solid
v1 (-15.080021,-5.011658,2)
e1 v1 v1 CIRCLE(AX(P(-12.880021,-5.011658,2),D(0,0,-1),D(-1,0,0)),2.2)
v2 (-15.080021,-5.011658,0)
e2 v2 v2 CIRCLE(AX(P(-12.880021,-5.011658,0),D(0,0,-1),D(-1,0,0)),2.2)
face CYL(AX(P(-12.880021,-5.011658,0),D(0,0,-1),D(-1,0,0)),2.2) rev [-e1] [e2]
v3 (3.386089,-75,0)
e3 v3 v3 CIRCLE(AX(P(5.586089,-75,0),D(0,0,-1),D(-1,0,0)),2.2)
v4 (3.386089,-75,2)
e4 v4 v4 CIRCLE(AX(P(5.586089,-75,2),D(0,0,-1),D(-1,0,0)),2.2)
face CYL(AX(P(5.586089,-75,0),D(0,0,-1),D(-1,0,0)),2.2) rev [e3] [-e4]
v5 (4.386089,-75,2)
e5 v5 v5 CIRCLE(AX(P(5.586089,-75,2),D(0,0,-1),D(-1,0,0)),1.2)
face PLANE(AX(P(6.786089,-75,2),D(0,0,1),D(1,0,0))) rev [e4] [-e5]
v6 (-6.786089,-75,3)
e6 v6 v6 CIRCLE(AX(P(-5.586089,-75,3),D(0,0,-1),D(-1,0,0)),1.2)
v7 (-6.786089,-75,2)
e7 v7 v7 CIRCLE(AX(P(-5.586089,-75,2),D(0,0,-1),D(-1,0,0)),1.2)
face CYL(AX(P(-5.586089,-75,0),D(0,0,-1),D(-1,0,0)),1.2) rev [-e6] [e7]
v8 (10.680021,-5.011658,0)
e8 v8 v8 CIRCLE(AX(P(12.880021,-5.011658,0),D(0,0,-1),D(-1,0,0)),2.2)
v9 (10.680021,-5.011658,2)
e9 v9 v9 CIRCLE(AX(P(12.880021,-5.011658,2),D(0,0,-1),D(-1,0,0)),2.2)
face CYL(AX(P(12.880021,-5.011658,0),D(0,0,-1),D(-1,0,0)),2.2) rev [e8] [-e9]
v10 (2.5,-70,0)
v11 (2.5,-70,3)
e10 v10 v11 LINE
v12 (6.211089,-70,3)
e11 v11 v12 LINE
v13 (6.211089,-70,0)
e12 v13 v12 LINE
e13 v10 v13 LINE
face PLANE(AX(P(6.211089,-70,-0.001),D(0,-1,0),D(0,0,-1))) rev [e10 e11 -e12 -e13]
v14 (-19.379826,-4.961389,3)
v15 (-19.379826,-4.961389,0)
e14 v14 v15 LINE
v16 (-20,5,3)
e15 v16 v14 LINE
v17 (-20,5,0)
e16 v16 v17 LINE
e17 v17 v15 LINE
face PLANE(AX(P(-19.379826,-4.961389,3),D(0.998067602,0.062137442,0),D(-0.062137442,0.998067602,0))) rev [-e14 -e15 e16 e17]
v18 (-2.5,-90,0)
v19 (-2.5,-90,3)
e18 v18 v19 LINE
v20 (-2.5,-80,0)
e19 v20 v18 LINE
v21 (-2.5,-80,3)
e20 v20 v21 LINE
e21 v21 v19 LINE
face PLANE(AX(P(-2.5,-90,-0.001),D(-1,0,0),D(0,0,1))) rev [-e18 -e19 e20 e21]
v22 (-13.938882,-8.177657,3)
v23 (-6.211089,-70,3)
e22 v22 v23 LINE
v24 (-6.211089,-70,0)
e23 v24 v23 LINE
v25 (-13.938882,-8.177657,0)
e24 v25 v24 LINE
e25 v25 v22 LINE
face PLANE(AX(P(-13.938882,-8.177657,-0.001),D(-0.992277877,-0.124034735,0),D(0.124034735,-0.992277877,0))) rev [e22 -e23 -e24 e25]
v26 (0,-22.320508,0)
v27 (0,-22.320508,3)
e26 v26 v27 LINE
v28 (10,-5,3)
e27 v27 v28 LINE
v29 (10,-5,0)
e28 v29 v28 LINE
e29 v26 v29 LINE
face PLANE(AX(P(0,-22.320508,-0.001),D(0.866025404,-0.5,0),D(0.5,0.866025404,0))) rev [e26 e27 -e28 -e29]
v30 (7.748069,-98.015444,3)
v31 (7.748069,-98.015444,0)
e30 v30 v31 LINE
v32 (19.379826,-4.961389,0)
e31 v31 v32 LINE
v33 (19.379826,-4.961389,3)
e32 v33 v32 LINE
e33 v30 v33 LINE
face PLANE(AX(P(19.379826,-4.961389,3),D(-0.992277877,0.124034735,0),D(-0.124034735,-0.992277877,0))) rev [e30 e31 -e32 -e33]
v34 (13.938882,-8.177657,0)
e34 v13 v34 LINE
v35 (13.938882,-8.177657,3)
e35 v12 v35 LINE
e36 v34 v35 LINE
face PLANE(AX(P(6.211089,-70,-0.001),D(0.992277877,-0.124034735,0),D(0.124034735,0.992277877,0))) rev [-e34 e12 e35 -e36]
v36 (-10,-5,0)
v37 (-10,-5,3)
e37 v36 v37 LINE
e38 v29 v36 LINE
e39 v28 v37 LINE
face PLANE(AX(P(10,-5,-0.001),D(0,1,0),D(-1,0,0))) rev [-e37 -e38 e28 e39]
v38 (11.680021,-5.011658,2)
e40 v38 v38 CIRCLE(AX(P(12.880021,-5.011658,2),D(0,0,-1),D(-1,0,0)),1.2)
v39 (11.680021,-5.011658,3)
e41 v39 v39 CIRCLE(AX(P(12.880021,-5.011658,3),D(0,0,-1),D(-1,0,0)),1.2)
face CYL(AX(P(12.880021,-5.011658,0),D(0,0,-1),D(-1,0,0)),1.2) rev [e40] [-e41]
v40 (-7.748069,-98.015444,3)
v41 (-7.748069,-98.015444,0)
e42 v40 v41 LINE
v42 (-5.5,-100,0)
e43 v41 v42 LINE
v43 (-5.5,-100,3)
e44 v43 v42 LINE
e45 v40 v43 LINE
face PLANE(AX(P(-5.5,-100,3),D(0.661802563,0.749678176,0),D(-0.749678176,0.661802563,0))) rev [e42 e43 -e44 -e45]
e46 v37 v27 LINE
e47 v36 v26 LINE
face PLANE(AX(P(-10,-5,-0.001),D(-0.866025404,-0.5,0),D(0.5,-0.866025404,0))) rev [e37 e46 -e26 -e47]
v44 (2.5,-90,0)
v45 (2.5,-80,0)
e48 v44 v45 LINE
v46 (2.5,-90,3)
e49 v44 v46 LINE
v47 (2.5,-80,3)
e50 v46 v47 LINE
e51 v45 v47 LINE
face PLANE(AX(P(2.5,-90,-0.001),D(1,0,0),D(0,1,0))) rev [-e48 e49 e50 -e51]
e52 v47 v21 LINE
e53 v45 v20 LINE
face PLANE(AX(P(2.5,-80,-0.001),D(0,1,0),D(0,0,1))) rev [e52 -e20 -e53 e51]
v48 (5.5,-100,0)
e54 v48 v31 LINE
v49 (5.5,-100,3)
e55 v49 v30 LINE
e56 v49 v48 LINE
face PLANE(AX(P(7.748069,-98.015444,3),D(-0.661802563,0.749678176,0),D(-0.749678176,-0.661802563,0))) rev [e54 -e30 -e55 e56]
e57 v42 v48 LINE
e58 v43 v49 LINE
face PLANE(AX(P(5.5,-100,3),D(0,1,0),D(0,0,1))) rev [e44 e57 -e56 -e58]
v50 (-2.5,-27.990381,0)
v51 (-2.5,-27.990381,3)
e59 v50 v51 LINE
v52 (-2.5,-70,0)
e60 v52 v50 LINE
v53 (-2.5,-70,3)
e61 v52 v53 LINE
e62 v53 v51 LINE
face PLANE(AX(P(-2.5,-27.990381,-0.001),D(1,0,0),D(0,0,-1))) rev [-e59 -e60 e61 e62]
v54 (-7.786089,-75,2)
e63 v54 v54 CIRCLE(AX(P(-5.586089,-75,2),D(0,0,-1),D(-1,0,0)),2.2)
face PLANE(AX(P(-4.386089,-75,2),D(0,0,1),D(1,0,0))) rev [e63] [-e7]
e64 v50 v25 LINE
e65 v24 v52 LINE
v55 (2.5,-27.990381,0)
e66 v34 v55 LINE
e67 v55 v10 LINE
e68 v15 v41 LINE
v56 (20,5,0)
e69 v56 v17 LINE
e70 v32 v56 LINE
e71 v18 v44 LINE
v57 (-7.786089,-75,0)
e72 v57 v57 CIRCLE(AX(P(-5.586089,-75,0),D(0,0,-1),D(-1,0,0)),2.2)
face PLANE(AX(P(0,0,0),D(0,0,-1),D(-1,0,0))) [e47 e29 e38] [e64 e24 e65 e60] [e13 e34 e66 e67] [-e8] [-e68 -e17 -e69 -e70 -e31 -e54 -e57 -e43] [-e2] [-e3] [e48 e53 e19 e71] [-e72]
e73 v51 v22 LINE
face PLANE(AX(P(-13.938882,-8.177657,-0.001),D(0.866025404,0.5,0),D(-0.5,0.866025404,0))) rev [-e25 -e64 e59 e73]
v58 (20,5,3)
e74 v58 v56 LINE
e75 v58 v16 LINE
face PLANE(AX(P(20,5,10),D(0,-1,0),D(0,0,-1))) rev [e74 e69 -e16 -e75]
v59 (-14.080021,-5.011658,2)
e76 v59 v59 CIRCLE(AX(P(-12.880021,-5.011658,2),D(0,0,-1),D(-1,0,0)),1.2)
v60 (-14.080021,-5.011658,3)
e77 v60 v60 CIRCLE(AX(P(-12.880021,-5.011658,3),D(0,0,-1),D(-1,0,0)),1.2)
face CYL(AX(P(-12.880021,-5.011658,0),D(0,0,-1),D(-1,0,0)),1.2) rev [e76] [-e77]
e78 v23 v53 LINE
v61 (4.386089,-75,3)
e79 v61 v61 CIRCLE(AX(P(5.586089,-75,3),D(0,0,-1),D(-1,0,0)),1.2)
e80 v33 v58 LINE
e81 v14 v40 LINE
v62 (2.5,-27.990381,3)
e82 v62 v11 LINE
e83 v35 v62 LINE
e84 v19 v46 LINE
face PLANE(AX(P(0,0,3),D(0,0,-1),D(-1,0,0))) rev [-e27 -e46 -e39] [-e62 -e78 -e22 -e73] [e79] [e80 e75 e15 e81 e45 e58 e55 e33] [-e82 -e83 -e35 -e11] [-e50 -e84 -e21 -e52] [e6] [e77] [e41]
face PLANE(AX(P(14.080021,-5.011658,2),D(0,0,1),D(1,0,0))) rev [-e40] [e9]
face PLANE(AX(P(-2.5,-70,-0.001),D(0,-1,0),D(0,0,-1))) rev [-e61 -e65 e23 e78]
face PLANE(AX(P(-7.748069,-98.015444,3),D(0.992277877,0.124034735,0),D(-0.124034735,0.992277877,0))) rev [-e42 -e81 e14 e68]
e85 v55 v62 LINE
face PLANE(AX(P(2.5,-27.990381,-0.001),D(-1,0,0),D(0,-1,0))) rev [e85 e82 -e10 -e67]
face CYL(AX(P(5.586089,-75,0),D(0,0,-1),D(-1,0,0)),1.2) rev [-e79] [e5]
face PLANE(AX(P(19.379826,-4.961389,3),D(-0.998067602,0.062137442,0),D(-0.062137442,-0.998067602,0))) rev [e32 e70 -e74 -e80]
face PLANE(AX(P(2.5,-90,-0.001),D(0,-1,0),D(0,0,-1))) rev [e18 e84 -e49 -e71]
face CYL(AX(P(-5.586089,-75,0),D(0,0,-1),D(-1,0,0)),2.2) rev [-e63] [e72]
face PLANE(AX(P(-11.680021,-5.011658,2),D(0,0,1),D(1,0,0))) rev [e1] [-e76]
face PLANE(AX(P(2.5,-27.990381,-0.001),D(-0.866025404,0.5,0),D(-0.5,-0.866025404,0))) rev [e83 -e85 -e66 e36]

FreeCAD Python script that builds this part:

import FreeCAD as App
import Part
import Sketcher
from FreeCAD import Vector
Q = App.Units.Quantity


def add_polygon(sketch, points):
    """Adds a closed chain of lines whose ends are joined by coincident constraints."""
    first, n = sketch.GeometryCount, len(points)
    for a, b in zip(points, points[1:] + points[:1]):
        sketch.addGeometry(Part.LineSegment(App.Vector(*a, 0), App.Vector(*b, 0)), False)
    for i in range(n):
        sketch.addConstraint(Sketcher.Constraint("Coincident", first + i, 2, first + (i + 1) % n, 1))

doc = App.newDocument("Part")
body = doc.addObject("PartDesign::Body", "Body")

sketch1 = doc.addObject("Sketcher::SketchObject", "Sketch")
body.addObject(sketch1)
sketch1.AttachmentSupport = (doc.XY_Plane, [""])
sketch1.MapMode = "FlatFace"
add_polygon(sketch1, [(20, 5), (20, 45), (19.258298, 54.944682), (13.241702, 95.055318), (7.5, 100), (-7.5, 100), (-13.241702, 95.055318), (-19.258298, 54.944682), (-20, 45), (-20, 5), (-19.379826, -4.961389), (-7.748069, -98.015444), (-5.5, -100), (5.5, -100), (7.748069, -98.015444), (19.379826, -4.961389)])
sketch1.addConstraint([
    Sketcher.Constraint("Vertical", 0),
    Sketcher.Constraint("Horizontal", 4),
    Sketcher.Constraint("Vertical", 8),
    Sketcher.Constraint("Horizontal", 12),
    Sketcher.Constraint("Symmetric", 2, 2, 5, 2, -2),
    Sketcher.Constraint("Symmetric", 1, 2, 6, 2, -2),
    Sketcher.Constraint("Symmetric", 0, 2, 7, 2, -2),
    Sketcher.Constraint("Symmetric", 10, 2, 13, 2, -2),
    Sketcher.Constraint("Symmetric", 9, 2, 14, 2, -2),
    Sketcher.Constraint("Horizontal", 8, 2, 15, 2),
    Sketcher.Constraint("Equal", 3, 5),
    Sketcher.Constraint("Equal", 11, 13),
    Sketcher.Constraint("DistanceX", 4, 2, 4, 1, Q("15 mm")),
    Sketcher.Constraint("DistanceX", 12, 1, 12, 2, Q("11 mm")),
    Sketcher.Constraint("DistanceY", 0, 1, 0, 2, Q("40 mm")),
    Sketcher.Constraint("DistanceX", -1, 1, 0, 2, Q("20 mm")),
    Sketcher.Constraint("DistanceY", -1, 1, 0, 2, Q("45 mm")),
    Sketcher.Constraint("DistanceY", -1, 1, 3, 2, Q("100 mm")),
    Sketcher.Constraint("DistanceY", 11, 2, -1, 1, Q("100 mm")),
    Sketcher.Constraint("DistanceX", 5, 2, 1, 2, Q("32.5 mm")),
    Sketcher.Constraint("Distance", 2, Q("40.559371 mm")),
    Sketcher.Constraint("Distance", 10, Q("93.778222 mm")),
    Sketcher.Constraint("DistanceY", -1, 1, 1, 2, Q("54.944682 mm")),
    Sketcher.Constraint("DistanceY", -1, 1, 2, 2, Q("95.055318 mm")),
    Sketcher.Constraint("DistanceY", 9, 2, -1, 1, Q("4.961389 mm")),
    Sketcher.Constraint("DistanceX", 10, 2, -1, 1, Q("7.748069 mm")),
    Sketcher.Constraint("DistanceX", 9, 2, 6, 2, Q("0.121529 mm")),
])
pad1 = doc.addObject("PartDesign::Pad", "Pad")
body.addObject(pad1)
pad1.Profile = sketch1
pad1.Length = 3

sketch2 = doc.addObject("Sketcher::SketchObject", "Sketch001")
body.addObject(sketch2)
sketch2.AttachmentSupport = (doc.XY_Plane, [""])
sketch2.MapMode = "FlatFace"
sketch2.AttachmentOffset = App.Placement(Vector(0, 0, 3), App.Rotation())
add_polygon(sketch2, [(10, -5), (-10, -5), (0, -22.320508)])
sketch2.addConstraint([
    Sketcher.Constraint("Horizontal", 0),
    Sketcher.Constraint("PointOnObject", 1, 2, -2),
    Sketcher.Constraint("Equal", 1, 2),
    Sketcher.Constraint("DistanceX", 0, 2, 0, 1, Q("20 mm")),
    Sketcher.Constraint("Angle", 1, Q("-60 deg")),
    Sketcher.Constraint("DistanceY", 0, 2, -1, 1, Q("5 mm")),
])
pocket1 = doc.addObject("PartDesign::Pocket", "Pocket")
body.addObject(pocket1)
pocket1.Profile = sketch2
pocket1.Type = "UpToFirst"

sketch3 = doc.addObject("Sketcher::SketchObject", "Sketch002")
body.addObject(sketch3)
sketch3.AttachmentSupport = (doc.XY_Plane, [""])
sketch3.MapMode = "FlatFace"
sketch3.AttachmentOffset = App.Placement(Vector(0, 0, 3), App.Rotation())
add_polygon(sketch3, [(6.211089, -70), (13.938882, -8.177657), (2.5, -27.990381), (2.5, -70)])
sketch3.addConstraint([
    Sketcher.Constraint("Vertical", 2),
    Sketcher.Constraint("Horizontal", 3),
    Sketcher.Constraint("Angle", 1, Q("-120 deg")),
    Sketcher.Constraint("DistanceY", 2, 2, -1, 1, Q("70 mm")),
    Sketcher.Constraint("DistanceX", -1, 1, 1, 2, Q("2.5 mm")),
    Sketcher.Constraint("DistanceX", 3, 1, 3, 2, Q("3.711089 mm")),
    Sketcher.Constraint("DistanceY", 2, 2, 2, 1, Q("42.009619 mm")),
    Sketcher.Constraint("Distance", 0, Q("62.303458 mm")),
])
pocket2 = doc.addObject("PartDesign::Pocket", "Pocket001")
body.addObject(pocket2)
pocket2.Profile = sketch3
pocket2.Type = "UpToFirst"

sketch4 = doc.addObject("Sketcher::SketchObject", "Sketch003")
body.addObject(sketch4)
sketch4.AttachmentSupport = (doc.XY_Plane, [""])
sketch4.MapMode = "FlatFace"
sketch4.AttachmentOffset = App.Placement(Vector(0, 0, 3), App.Rotation())
add_polygon(sketch4, [(-2.5, -27.990381), (-13.938882, -8.177657), (-6.211089, -70), (-2.5, -70)])
sketch4.addConstraint([
    Sketcher.Constraint("Horizontal", 2),
    Sketcher.Constraint("Vertical", 3),
    Sketcher.Constraint("Angle", 0, Q("120 deg")),
    Sketcher.Constraint("DistanceY", 1, 2, -1, 1, Q("70 mm")),
    Sketcher.Constraint("DistanceX", 2, 2, -1, 1, Q("2.5 mm")),
    Sketcher.Constraint("DistanceX", 2, 1, 2, 2, Q("3.711089 mm")),
    Sketcher.Constraint("DistanceY", 3, 1, 3, 2, Q("42.009619 mm")),
    Sketcher.Constraint("Distance", 1, Q("62.303458 mm")),
])
pocket3 = doc.addObject("PartDesign::Pocket", "Pocket002")
body.addObject(pocket3)
pocket3.Profile = sketch4
pocket3.Type = "UpToFirst"

sketch5 = doc.addObject("Sketcher::SketchObject", "Sketch004")
body.addObject(sketch5)
sketch5.AttachmentSupport = (doc.XY_Plane, [""])
sketch5.MapMode = "FlatFace"
sketch5.AttachmentOffset = App.Placement(Vector(0, 0, 3), App.Rotation())
add_polygon(sketch5, [(-2.5, -80), (-2.5, -90), (2.5, -90), (2.5, -80)])
sketch5.addConstraint([
    Sketcher.Constraint("Vertical", 0),
    Sketcher.Constraint("Horizontal", 1),
    Sketcher.Constraint("Vertical", 2),
    Sketcher.Constraint("Horizontal", 3),
    Sketcher.Constraint("DistanceX", 1, 1, 1, 2, Q("5 mm")),
    Sketcher.Constraint("DistanceY", 0, 2, 0, 1, Q("10 mm")),
    Sketcher.Constraint("DistanceY", 0, 2, -1, 1, Q("90 mm")),
    Sketcher.Constraint("DistanceX", 0, 2, -1, 1, Q("2.5 mm")),
])
pocket4 = doc.addObject("PartDesign::Pocket", "Pocket003")
body.addObject(pocket4)
pocket4.Profile = sketch5
pocket4.Type = "UpToFirst"

sketch6 = doc.addObject("Sketcher::SketchObject", "Sketch005")
body.addObject(sketch6)
sketch6.AttachmentSupport = (doc.XY_Plane, [""])
sketch6.MapMode = "FlatFace"
sketch6.addGeometry([
    Part.Circle(Vector(5.586089, -75, 0), Vector(0, 0, 1), 1.2),
    Part.Circle(Vector(-5.586089, -75, 0), Vector(0, 0, 1), 1.2),
], False)
sketch6.addConstraint([
    Sketcher.Constraint("Equal", 0, 1),
    Sketcher.Constraint("Symmetric", 0, 3, 1, 3, -2),
    Sketcher.Constraint("Diameter", 0, Q("2.4 mm")),
    Sketcher.Constraint("DistanceY", 0, 3, -1, 1, Q("75 mm")),
    Sketcher.Constraint("DistanceX", -1, 1, 0, 3, Q("5.586089 mm")),
])
doc.recompute()
hole = doc.addObject("PartDesign::Hole", "Hole")
body.addObject(hole)
hole.Profile = sketch6
hole.ThreadType = "None"
hole.Diameter = 2.4
hole.DepthType = "ThroughAll"
hole.HoleCutType = "Counterbore"
hole.HoleCutDiameter = 4.4
hole.HoleCutDepth = 2
hole.Reversed = True

sketch7 = doc.addObject("Sketcher::SketchObject", "Sketch006")
body.addObject(sketch7)
sketch7.AttachmentSupport = (doc.XY_Plane, [""])
sketch7.MapMode = "FlatFace"
sketch7.addGeometry(Part.Circle(Vector(0, 25, 0), Vector(0, 0, 1), 4), False)
sketch7.addConstraint([
    Sketcher.Constraint("PointOnObject", 0, 3, -2),
    Sketcher.Constraint("Diameter", 0, Q("8 mm")),
    Sketcher.Constraint("DistanceY", -1, 1, 0, 3, Q("25 mm")),
])
pocket5 = doc.addObject("PartDesign::Pocket", "Pocket004")
body.addObject(pocket5)
pocket5.Profile = sketch7
pocket5.Type = "UpToFirst"
pocket5.Reversed = True

sketch8 = doc.addObject("Sketcher::SketchObject", "Sketch007")
body.addObject(sketch8)
sketch8.AttachmentSupport = (doc.XY_Plane, [""])
sketch8.MapMode = "FlatFace"
sketch8.addGeometry([
    Part.Circle(Vector(8, 25, 0), Vector(0, 0, 1), 1.2),
    Part.Circle(Vector(0, 33, 0), Vector(0, 0, 1), 1.2),
    Part.Circle(Vector(-8, 25, 0), Vector(0, 0, 1), 1.2),
    Part.Circle(Vector(0, 17, 0), Vector(0, 0, 1), 1.2),
], False)
sketch8.addConstraint([
    Sketcher.Constraint("Equal", 0, 1),
    Sketcher.Constraint("Equal", 1, 2),
    Sketcher.Constraint("Equal", 2, 3),
    Sketcher.Constraint("Symmetric", 0, 3, 2, 3, -2),
    Sketcher.Constraint("PointOnObject", 1, 3, -2),
    Sketcher.Constraint("PointOnObject", 3, 3, -2),
    Sketcher.Constraint("Diameter", 0, Q("2.4 mm")),
    Sketcher.Constraint("DistanceX", -1, 1, 0, 3, Q("8 mm")),
    Sketcher.Constraint("DistanceY", -1, 1, 0, 3, Q("25 mm")),
    Sketcher.Constraint("DistanceY", -1, 1, 1, 3, Q("33 mm")),
    Sketcher.Constraint("DistanceY", -1, 1, 3, 3, Q("17 mm")),
])
doc.recompute()
hole2 = doc.addObject("PartDesign::Hole", "Hole001")
body.addObject(hole2)
hole2.Profile = sketch8
hole2.ThreadType = "None"
hole2.Diameter = 2.4
hole2.DepthType = "ThroughAll"
hole2.HoleCutType = "Counterbore"
hole2.HoleCutDiameter = 4.4
hole2.HoleCutDepth = 2
hole2.Reversed = True

sketch9 = doc.addObject("Sketcher::SketchObject", "Sketch008")
body.addObject(sketch9)
sketch9.AttachmentSupport = (doc.XY_Plane, [""])
sketch9.MapMode = "FlatFace"
sketch9.addGeometry([
    Part.Circle(Vector(12.880021, -5.011658, 0), Vector(0, 0, 1), 1.2),
    Part.Circle(Vector(-12.880021, -5.011658, 0), Vector(0, 0, 1), 1.2),
], False)
sketch9.addConstraint([
    Sketcher.Constraint("Equal", 0, 1),
    Sketcher.Constraint("Symmetric", 0, 3, 1, 3, -2),
    Sketcher.Constraint("Diameter", 0, Q("2.4 mm")),
    Sketcher.Constraint("DistanceX", -1, 1, 0, 3, Q("12.880021 mm")),
    Sketcher.Constraint("DistanceY", 0, 3, -1, 1, Q("5.011658 mm")),
])
doc.recompute()
hole3 = doc.addObject("PartDesign::Hole", "Hole002")
body.addObject(hole3)
hole3.Profile = sketch9
hole3.ThreadType = "None"
hole3.Diameter = 2.4
hole3.DepthType = "ThroughAll"
hole3.HoleCutType = "Counterbore"
hole3.HoleCutDiameter = 4.4
hole3.HoleCutDepth = 2
hole3.Reversed = True

sketch10 = doc.addObject("Sketcher::SketchObject", "Sketch009")
body.addObject(sketch10)
sketch10.AttachmentSupport = (doc.XY_Plane, [""])
sketch10.MapMode = "FlatFace"
add_polygon(sketch10, [(10.679275, 78.43192), (14.016935, 56.180852), (12.313616, 54.202979), (4.5, 54.202979), (2.5, 56.202979), (2.5, 77.044248), (4.470648, 79.385634), (8.411945, 80.068407)])
add_polygon(sketch10, [(8.297021, 94.313616), (9.344021, 87.333615), (7.670053, 85.014356), (0, 83.685631), (-7.670053, 85.014356), (-9.344021, 87.333615), (-8.297021, 94.313616)])
add_polygon(sketch10, [(-4.5, 54.202979), (-12.313616, 54.202979), (-14.016935, 56.180852), (-10.679275, 78.43192), (-8.411945, 80.068407), (-4.470648, 79.385634), (-2.5, 77.044248), (-2.5, 56.202979)])
sketch10.addConstraint([
    Sketcher.Constraint("Horizontal", 2),
    Sketcher.Constraint("Vertical", 4),
    Sketcher.Constraint("Horizontal", 14),
    Sketcher.Constraint("Horizontal", 15),
    Sketcher.Constraint("Vertical", 21),
    Sketcher.Constraint("Symmetric", 9, 2, 11, 2, -2),
    Sketcher.Constraint("Symmetric", 8, 2, 12, 2, -2),
    Sketcher.Constraint("Symmetric", 1, 2, 15, 2, -2),
    Sketcher.Constraint("Symmetric", 0, 2, 16, 2, -2),
    Sketcher.Constraint("Symmetric", 7, 2, 17, 2, -2),
    Sketcher.Constraint("Symmetric", 6, 2, 18, 2, -2),
    Sketcher.Constraint("Symmetric", 5, 2, 19, 2, -2),
    Sketcher.Constraint("Symmetric", 4, 2, 20, 2, -2),
    Sketcher.Constraint("PointOnObject", 10, 2, -2),
    Sketcher.Constraint("Parallel", 0, 8),
    Sketcher.Constraint("Perpendicular", 7, 9),
    Sketcher.Constraint("Parallel", 6, 10),
    Sketcher.Constraint("Parallel", 13, 17),
    Sketcher.Constraint("Perpendicular", 3, 22),
    Sketcher.Constraint("Horizontal", 3, 2, 21, 2),
    Sketcher.Constraint("Equal", 2, 15),
    Sketcher.Constraint("Distance", 6, Q("4 mm")),
    Sketcher.Constraint("DistanceX", 3, 2, 2, 2, Q("2 mm")),
    Sketcher.Constraint("DistanceX", 20, 2, 4, 2, Q("5 mm")),
    Sketcher.Constraint("Distance", 0, Q("22.5 mm")),
    Sketcher.Constraint("DistanceY", 12, 2, 13, 2, Q("6.980001 mm")),
    Sketcher.Constraint("DistanceX", 11, 2, 6, 2, Q("16.081999 mm")),
    Sketcher.Constraint("DistanceX", 12, 2, 13, 2, Q("1.047 mm")),
    Sketcher.Constraint("DistanceX", 14, 1, 14, 2, Q("16.594041 mm")),
    Sketcher.Constraint("DistanceY", 4, 1, 4, 2, Q("20.841269 mm")),
    Sketcher.Constraint("DistanceX", 11, 2, 5, 2, Q("12.140702 mm")),
    Sketcher.Constraint("DistanceX", 2, 2, 2, 1, Q("7.813616 mm")),
    Sketcher.Constraint("DistanceY", -1, 1, 1, 2, Q("54.202979 mm")),
    Sketcher.Constraint("DistanceX", -1, 1, 5, 2, Q("4.470648 mm")),
    Sketcher.Constraint("DistanceY", -1, 1, 7, 2, Q("78.43192 mm")),
    Sketcher.Constraint("DistanceY", -1, 1, 10, 2, Q("83.685631 mm")),
    Sketcher.Constraint("DistanceX", 1, 2, 0, 2, Q("1.703319 mm")),
    Sketcher.Constraint("DistanceY", 4, 2, 6, 2, Q("3.024159 mm")),
])
pocket6 = doc.addObject("PartDesign::Pocket", "Pocket005")
body.addObject(pocket6)
pocket6.Profile = sketch10
pocket6.Length = 3
pocket6.Reversed = True

sketch11 = doc.addObject("Sketcher::SketchObject", "Sketch010")
body.addObject(sketch11)
sketch11.AttachmentSupport = (doc.XY_Plane, [""])
sketch11.MapMode = "FlatFace"
sketch11.addGeometry(Part.Circle(Vector(0, 79.840053, 0), Vector(0, 0, 1), 1.2), False)
sketch11.addConstraint([
    Sketcher.Constraint("PointOnObject", 0, 3, -2),
    Sketcher.Constraint("Diameter", 0, Q("2.4 mm")),
    Sketcher.Constraint("DistanceY", -1, 1, 0, 3, Q("79.840053 mm")),
])
doc.recompute()
hole4 = doc.addObject("PartDesign::Hole", "Hole003")
body.addObject(hole4)
hole4.Profile = sketch11
hole4.ThreadType = "None"
hole4.Diameter = 2.4
hole4.DepthType = "ThroughAll"
hole4.HoleCutType = "Counterbore"
hole4.HoleCutDiameter = 4.4
hole4.HoleCutDepth = 2
hole4.Reversed = True

sketch12 = doc.addObject("Sketcher::SketchObject", "Sketch011")
body.addObject(sketch12)
sketch12.AttachmentSupport = (doc.XY_Plane, [""])
sketch12.MapMode = "FlatFace"
sketch12.addGeometry([
    Part.Circle(Vector(12.880021, 14.988342, 0), Vector(0, 0, 1), 1.2),
    Part.Circle(Vector(-12.880021, 14.988342, 0), Vector(0, 0, 1), 1.2),
], False)
sketch12.addConstraint([
    Sketcher.Constraint("Equal", 0, 1),
    Sketcher.Constraint("Symmetric", 0, 3, 1, 3, -2),
    Sketcher.Constraint("Diameter", 0, Q("2.4 mm")),
    Sketcher.Constraint("DistanceX", -1, 1, 0, 3, Q("12.880021 mm")),
    Sketcher.Constraint("DistanceY", -1, 1, 0, 3, Q("14.988342 mm")),
])
doc.recompute()
hole5 = doc.addObject("PartDesign::Hole", "Hole004")
body.addObject(hole5)
hole5.Profile = sketch12
hole5.ThreadType = "None"
hole5.Diameter = 2.4
hole5.DepthType = "ThroughAll"
hole5.HoleCutType = "Counterbore"
hole5.HoleCutDiameter = 4.4
hole5.HoleCutDepth = 2
hole5.Reversed = True

sketch13 = doc.addObject("Sketcher::SketchObject", "Sketch012")
body.addObject(sketch13)
sketch13.AttachmentSupport = (doc.XY_Plane, [""])
sketch13.MapMode = "FlatFace"
add_polygon(sketch13, [(20, 5), (-20, 5), (-20, 99.998274), (-7.5, 100), (7.5, 100), (20, 99.998274)])
sketch13.addConstraint([
    Sketcher.Constraint("Horizontal", 0),
    Sketcher.Constraint("Vertical", 1),
    Sketcher.Constraint("Horizontal", 3),
    Sketcher.Constraint("Vertical", 5),
    Sketcher.Constraint("Symmetric", 1, 2, 4, 2, -2),
    Sketcher.Constraint("Equal", 2, 4),
    Sketcher.Constraint("DistanceX", 0, 2, 0, 1, Q("40 mm")),
    Sketcher.Constraint("DistanceX", 3, 1, 3, 2, Q("15 mm")),
    Sketcher.Constraint("DistanceY", -1, 1, 0, 2, Q("5 mm")),
    Sketcher.Constraint("DistanceY", -1, 1, 2, 2, Q("100 mm")),
    Sketcher.Constraint("DistanceY", 1, 1, 1, 2, Q("94.998274 mm")),
])
pocket7 = doc.addObject("PartDesign::Pocket", "Pocket006")
body.addObject(pocket7)
pocket7.Profile = sketch13
pocket7.Length = 10
pocket7.Reversed = True

doc.recompute()
